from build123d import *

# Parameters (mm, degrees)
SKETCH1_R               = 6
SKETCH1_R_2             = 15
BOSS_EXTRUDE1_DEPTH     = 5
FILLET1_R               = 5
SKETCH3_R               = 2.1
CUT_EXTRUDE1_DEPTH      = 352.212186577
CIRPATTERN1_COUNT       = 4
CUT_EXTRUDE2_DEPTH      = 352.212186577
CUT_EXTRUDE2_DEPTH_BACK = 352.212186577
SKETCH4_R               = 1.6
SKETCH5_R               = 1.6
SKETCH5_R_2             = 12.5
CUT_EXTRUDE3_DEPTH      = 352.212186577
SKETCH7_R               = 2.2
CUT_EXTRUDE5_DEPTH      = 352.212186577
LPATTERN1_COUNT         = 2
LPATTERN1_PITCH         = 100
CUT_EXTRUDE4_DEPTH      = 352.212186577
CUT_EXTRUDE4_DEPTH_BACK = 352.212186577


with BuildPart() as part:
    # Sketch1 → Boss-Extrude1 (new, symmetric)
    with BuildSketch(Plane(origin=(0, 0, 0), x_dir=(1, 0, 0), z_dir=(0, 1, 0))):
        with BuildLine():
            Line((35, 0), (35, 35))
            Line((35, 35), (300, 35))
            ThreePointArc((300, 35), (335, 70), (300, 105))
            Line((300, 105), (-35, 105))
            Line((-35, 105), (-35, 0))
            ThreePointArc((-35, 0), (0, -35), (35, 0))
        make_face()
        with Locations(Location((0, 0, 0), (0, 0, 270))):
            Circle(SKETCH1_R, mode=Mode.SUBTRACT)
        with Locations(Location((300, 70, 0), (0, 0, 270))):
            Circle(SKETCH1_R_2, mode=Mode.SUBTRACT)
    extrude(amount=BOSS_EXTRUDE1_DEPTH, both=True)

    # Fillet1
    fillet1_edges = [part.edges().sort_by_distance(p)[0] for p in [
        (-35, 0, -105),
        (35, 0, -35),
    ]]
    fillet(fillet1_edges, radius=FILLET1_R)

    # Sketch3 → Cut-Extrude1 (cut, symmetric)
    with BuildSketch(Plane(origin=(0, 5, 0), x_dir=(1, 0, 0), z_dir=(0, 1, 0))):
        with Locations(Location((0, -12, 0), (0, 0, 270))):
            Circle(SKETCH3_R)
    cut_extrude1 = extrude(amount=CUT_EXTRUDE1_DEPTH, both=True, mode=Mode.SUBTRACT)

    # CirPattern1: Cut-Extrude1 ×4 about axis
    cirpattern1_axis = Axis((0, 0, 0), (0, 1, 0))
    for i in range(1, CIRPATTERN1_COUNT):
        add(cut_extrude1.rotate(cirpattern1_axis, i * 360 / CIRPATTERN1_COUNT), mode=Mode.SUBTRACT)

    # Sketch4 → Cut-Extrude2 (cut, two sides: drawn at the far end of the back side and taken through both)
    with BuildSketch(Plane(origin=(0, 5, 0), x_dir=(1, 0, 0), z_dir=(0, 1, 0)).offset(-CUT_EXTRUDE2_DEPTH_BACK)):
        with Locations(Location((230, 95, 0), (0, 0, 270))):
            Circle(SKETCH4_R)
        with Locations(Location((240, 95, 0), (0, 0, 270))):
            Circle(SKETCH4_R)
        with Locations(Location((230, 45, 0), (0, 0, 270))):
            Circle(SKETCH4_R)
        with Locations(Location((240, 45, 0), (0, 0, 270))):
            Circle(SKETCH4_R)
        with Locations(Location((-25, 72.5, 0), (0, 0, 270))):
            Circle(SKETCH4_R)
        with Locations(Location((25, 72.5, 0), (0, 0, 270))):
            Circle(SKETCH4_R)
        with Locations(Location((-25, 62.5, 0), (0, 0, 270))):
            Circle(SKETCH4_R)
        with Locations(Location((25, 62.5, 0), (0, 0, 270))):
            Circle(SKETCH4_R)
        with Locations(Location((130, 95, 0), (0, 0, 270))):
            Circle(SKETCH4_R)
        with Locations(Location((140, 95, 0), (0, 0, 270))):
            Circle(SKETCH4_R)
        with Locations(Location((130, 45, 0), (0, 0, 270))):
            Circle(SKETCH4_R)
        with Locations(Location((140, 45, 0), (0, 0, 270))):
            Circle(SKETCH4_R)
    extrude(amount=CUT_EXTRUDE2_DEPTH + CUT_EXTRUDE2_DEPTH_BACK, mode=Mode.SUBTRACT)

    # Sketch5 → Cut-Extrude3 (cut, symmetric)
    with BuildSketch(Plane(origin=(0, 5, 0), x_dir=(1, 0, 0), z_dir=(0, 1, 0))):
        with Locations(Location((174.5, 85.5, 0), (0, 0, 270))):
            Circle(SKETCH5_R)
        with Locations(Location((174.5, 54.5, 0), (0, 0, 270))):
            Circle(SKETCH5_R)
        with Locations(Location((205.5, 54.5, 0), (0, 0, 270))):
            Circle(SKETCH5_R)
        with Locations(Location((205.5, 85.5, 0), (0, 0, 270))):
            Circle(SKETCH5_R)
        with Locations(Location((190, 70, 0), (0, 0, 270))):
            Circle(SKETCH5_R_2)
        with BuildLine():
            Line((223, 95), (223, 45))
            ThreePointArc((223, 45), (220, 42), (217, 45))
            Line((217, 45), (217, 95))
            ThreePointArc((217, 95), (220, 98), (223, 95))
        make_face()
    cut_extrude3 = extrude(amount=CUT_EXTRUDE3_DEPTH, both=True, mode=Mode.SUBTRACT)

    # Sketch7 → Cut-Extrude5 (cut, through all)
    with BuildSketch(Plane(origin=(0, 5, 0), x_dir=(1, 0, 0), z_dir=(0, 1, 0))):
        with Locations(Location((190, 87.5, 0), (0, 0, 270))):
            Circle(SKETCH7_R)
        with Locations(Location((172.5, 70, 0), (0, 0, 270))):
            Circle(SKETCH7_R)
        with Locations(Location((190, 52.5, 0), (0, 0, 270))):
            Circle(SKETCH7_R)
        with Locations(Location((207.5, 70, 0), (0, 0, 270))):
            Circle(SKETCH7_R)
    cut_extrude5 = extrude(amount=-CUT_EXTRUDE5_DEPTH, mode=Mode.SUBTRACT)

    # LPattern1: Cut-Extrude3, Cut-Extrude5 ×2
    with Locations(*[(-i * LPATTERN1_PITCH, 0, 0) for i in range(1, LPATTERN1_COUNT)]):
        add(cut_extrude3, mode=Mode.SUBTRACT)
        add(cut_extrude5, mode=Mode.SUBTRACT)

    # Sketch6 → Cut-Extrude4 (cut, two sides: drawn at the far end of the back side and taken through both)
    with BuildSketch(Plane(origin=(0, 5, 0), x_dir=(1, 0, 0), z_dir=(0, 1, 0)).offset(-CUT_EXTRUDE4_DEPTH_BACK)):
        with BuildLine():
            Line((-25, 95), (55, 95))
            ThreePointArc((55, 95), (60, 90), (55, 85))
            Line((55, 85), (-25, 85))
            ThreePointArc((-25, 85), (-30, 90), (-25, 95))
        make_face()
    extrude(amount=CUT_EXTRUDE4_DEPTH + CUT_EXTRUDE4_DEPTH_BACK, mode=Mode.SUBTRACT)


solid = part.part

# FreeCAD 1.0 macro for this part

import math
import FreeCAD as App
import Part
import Sketcher
Q = App.Units.Quantity


def edges_at(feature, points):
    """Names of the edges that pass closest to the given points."""
    edges = feature.Shape.Edges
    near = lambda p: min(range(len(edges)), key=lambda i: edges[i].distToShape(Part.Vertex(*p))[0])
    return sorted({f"Edge{near(p) + 1}" for p in points})

doc = App.newDocument("Part")
body = doc.addObject("PartDesign::Body", "Body")

sketch1 = body.newObject("Sketcher::SketchObject", "Sketch")
sketch1.AttachmentSupport = (doc.getObject("XZ_Plane"), [""])
sketch1.MapMode = "FlatFace"
sketch1.addGeometry([
    Part.LineSegment(App.Vector(35, 0, 0), App.Vector(35, -35, 0)),
    Part.LineSegment(App.Vector(35, -35, 0), App.Vector(300, -35, 0)),
    Part.ArcOfCircle(Part.Circle(App.Vector(300, -70, 0), App.Vector(0, 0, 1), 35), math.radians(-90), math.radians(90)),
    Part.LineSegment(App.Vector(300, -105, 0), App.Vector(-35, -105, 0)),
    Part.LineSegment(App.Vector(-35, -105, 0), App.Vector(-35, 0, 0)),
    Part.ArcOfCircle(Part.Circle(App.Vector(0, 0, 0), App.Vector(0, 0, 1), 35), math.radians(0), math.radians(180)),
    Part.Circle(App.Vector(0, 0, 0), App.Vector(0, 0, 1), 6),
    Part.Circle(App.Vector(300, -70, 0), App.Vector(0, 0, 1), 15),
], False)
sketch1.addConstraint([
    Sketcher.Constraint("Coincident", 0, 2, 1, 1),
    Sketcher.Constraint("Tangent", 1, 2, 2, 2),
    Sketcher.Constraint("Tangent", 2, 1, 3, 1),
    Sketcher.Constraint("Coincident", 3, 2, 4, 1),
    Sketcher.Constraint("Tangent", 4, 2, 5, 2),
    Sketcher.Constraint("Tangent", 5, 1, 0, 1),
    Sketcher.Constraint("Vertical", 0),
    Sketcher.Constraint("Horizontal", 1),
    Sketcher.Constraint("Horizontal", 3),
    Sketcher.Constraint("Vertical", 4),
    Sketcher.Constraint("Coincident", 5, 3, -1, 1),
    Sketcher.Constraint("Coincident", 6, 3, -1, 1),
    Sketcher.Constraint("Coincident", 7, 3, 2, 3),
    Sketcher.Constraint("Equal", 2, 5),
    Sketcher.Constraint("Diameter", 6, Q("12 mm")),
    Sketcher.Constraint("Diameter", 7, Q("30 mm")),
    Sketcher.Constraint("Radius", 2, Q("35 mm")),
    Sketcher.Constraint("DistanceX", 1, 1, 1, 2, Q("265 mm")),
    Sketcher.Constraint("DistanceY", 0, 2, 0, 1, Q("35 mm")),
])
pad1 = body.newObject("PartDesign::Pad", "Pad")
pad1.Profile = sketch1
pad1.Length = 10
pad1.Midplane = True
doc.recompute()

fillet = body.newObject("PartDesign::Fillet", "Fillet")
fillet.Base = (pad1, edges_at(pad1, [(-35, 0, -105), (35, 0, -35)]))
fillet.Radius = 5

sketch2 = body.newObject("Sketcher::SketchObject", "Sketch001")
sketch2.AttachmentSupport = (doc.getObject("XZ_Plane"), [""])
sketch2.MapMode = "FlatFace"
sketch2.AttachmentOffset = App.Placement(App.Vector(0, 0, -5), App.Rotation())
sketch2.addGeometry(Part.Circle(App.Vector(0, 12, 0), App.Vector(0, 0, 1), 2.1), False)
sketch2.addConstraint([
    Sketcher.Constraint("PointOnObject", 0, 3, -2),
    Sketcher.Constraint("Diameter", 0, Q("4.2 mm")),
    Sketcher.Constraint("DistanceY", -1, 1, 0, 3, Q("12 mm")),
])
pocket1 = body.newObject("PartDesign::Pocket", "Pocket")
pocket1.Profile = sketch2
pocket1.Length = 704.424373
pocket1.Midplane = True
doc.recompute()

polarpattern = body.newObject("PartDesign::PolarPattern", "PolarPattern")
polarpattern.Originals = [pocket1]
polarpattern.Axis = (doc.getObject("Y_Axis"), [""])
polarpattern.Angle = 360
polarpattern.Occurrences = 4
body.Tip = polarpattern

sketch3 = body.newObject("Sketcher::SketchObject", "Sketch002")
sketch3.AttachmentSupport = (doc.getObject("XZ_Plane"), [""])
sketch3.MapMode = "FlatFace"
sketch3.AttachmentOffset = App.Placement(App.Vector(0, 0, -5), App.Rotation())
sketch3.addGeometry([
    Part.Circle(App.Vector(230, -95, 0), App.Vector(0, 0, 1), 1.6),
    Part.Circle(App.Vector(240, -95, 0), App.Vector(0, 0, 1), 1.6),
    Part.Circle(App.Vector(230, -45, 0), App.Vector(0, 0, 1), 1.6),
    Part.Circle(App.Vector(240, -45, 0), App.Vector(0, 0, 1), 1.6),
    Part.Circle(App.Vector(-25, -72.5, 0), App.Vector(0, 0, 1), 1.6),
    Part.Circle(App.Vector(25, -72.5, 0), App.Vector(0, 0, 1), 1.6),
    Part.Circle(App.Vector(-25, -62.5, 0), App.Vector(0, 0, 1), 1.6),
    Part.Circle(App.Vector(25, -62.5, 0), App.Vector(0, 0, 1), 1.6),
    Part.Circle(App.Vector(130, -95, 0), App.Vector(0, 0, 1), 1.6),
    Part.Circle(App.Vector(140, -95, 0), App.Vector(0, 0, 1), 1.6),
    Part.Circle(App.Vector(130, -45, 0), App.Vector(0, 0, 1), 1.6),
    Part.Circle(App.Vector(140, -45, 0), App.Vector(0, 0, 1), 1.6),
], False)
sketch3.addConstraint([
    Sketcher.Constraint("Equal", 0, 1),
    Sketcher.Constraint("Equal", 1, 2),
    Sketcher.Constraint("Equal", 2, 3),
    Sketcher.Constraint("Equal", 3, 4),
    Sketcher.Constraint("Equal", 4, 5),
    Sketcher.Constraint("Equal", 5, 6),
    Sketcher.Constraint("Equal", 6, 7),
    Sketcher.Constraint("Equal", 7, 8),
    Sketcher.Constraint("Equal", 8, 9),
    Sketcher.Constraint("Equal", 9, 10),
    Sketcher.Constraint("Equal", 10, 11),
    Sketcher.Constraint("Symmetric", 4, 3, 5, 3, -2),
    Sketcher.Constraint("Symmetric", 6, 3, 7, 3, -2),
    Sketcher.Constraint("Horizontal", 0, 3, 1, 3),
    Sketcher.Constraint("Horizontal", 2, 3, 3, 3),
    Sketcher.Constraint("Horizontal", 1, 3, 8, 3),
    Sketcher.Constraint("Horizontal", 8, 3, 9, 3),
    Sketcher.Constraint("Horizontal", 3, 3, 10, 3),
    Sketcher.Constraint("Horizontal", 10, 3, 11, 3),
    Sketcher.Constraint("Vertical", 0, 3, 2, 3),
    Sketcher.Constraint("Vertical", 1, 3, 3, 3),
    Sketcher.Constraint("Vertical", 4, 3, 6, 3),
    Sketcher.Constraint("Vertical", 8, 3, 10, 3),
    Sketcher.Constraint("Vertical", 9, 3, 11, 3),
    Sketcher.Constraint("Diameter", 0, Q("3.2 mm")),
    Sketcher.Constraint("DistanceX", -1, 1, 0, 3, Q("230 mm")),
    Sketcher.Constraint("DistanceY", 0, 3, -1, 1, Q("95 mm")),
    Sketcher.Constraint("DistanceX", -1, 1, 1, 3, Q("240 mm")),
    Sketcher.Constraint("DistanceY", 2, 3, -1, 1, Q("45 mm")),
    Sketcher.Constraint("DistanceX", 4, 3, -1, 1, Q("25 mm")),
    Sketcher.Constraint("DistanceX", -1, 1, 8, 3, Q("130 mm")),
    Sketcher.Constraint("DistanceX", -1, 1, 9, 3, Q("140 mm")),
    Sketcher.Constraint("DistanceY", 4, 3, 6, 3, Q("10 mm")),
    Sketcher.Constraint("DistanceY", 4, 3, -1, 1, Q("72.5 mm")),
])
pocket2 = body.newObject("PartDesign::Pocket", "Pocket001")
pocket2.Profile = sketch3
pocket2.Type = "ThroughAll"
pocket2.Midplane = True

sketch4 = body.newObject("Sketcher::SketchObject", "Sketch003")
sketch4.AttachmentSupport = (doc.getObject("XZ_Plane"), [""])
sketch4.MapMode = "FlatFace"
sketch4.AttachmentOffset = App.Placement(App.Vector(0, 0, -5), App.Rotation())
sketch4.addGeometry([
    Part.Circle(App.Vector(174.5, -85.5, 0), App.Vector(0, 0, 1), 1.6),
    Part.Circle(App.Vector(174.5, -54.5, 0), App.Vector(0, 0, 1), 1.6),
    Part.Circle(App.Vector(205.5, -54.5, 0), App.Vector(0, 0, 1), 1.6),
    Part.Circle(App.Vector(205.5, -85.5, 0), App.Vector(0, 0, 1), 1.6),
    Part.Circle(App.Vector(190, -70, 0), App.Vector(0, 0, 1), 12.5),
    Part.LineSegment(App.Vector(223, -45, 0), App.Vector(223, -95, 0)),
    Part.ArcOfCircle(Part.Circle(App.Vector(220, -95, 0), App.Vector(0, 0, 1), 3), math.radians(180), math.radians(360)),
    Part.LineSegment(App.Vector(217, -95, 0), App.Vector(217, -45, 0)),
    Part.ArcOfCircle(Part.Circle(App.Vector(220, -45, 0), App.Vector(0, 0, 1), 3), math.radians(0), math.radians(180)),
], False)
sketch4.addConstraint([
    Sketcher.Constraint("Tangent", 5, 2, 6, 2),
    Sketcher.Constraint("Tangent", 6, 1, 7, 1),
    Sketcher.Constraint("Tangent", 7, 2, 8, 2),
    Sketcher.Constraint("Tangent", 8, 1, 5, 1),
    Sketcher.Constraint("Vertical", 5),
    Sketcher.Constraint("Vertical", 7),
    Sketcher.Constraint("Equal", 0, 1),
    Sketcher.Constraint("Equal", 1, 2),
    Sketcher.Constraint("Equal", 2, 3),
    Sketcher.Constraint("Horizontal", 1, 3, 2, 3),
    Sketcher.Constraint("Horizontal", 0, 3, 3, 3),
    Sketcher.Constraint("Vertical", 0, 3, 1, 3),
    Sketcher.Constraint("Vertical", 2, 3, 3, 3),
    Sketcher.Constraint("Diameter", 4, Q("25 mm")),
    Sketcher.Constraint("Radius", 6, Q("3 mm")),
    Sketcher.Constraint("Diameter", 0, Q("3.2 mm")),
    Sketcher.Constraint("DistanceY", 5, 2, 5, 1, Q("50 mm")),
    Sketcher.Constraint("DistanceX", -1, 1, 4, 3, Q("190 mm")),
    Sketcher.Constraint("DistanceY", 4, 3, -1, 1, Q("70 mm")),
    Sketcher.Constraint("DistanceX", -1, 1, 6, 3, Q("220 mm")),
    Sketcher.Constraint("DistanceY", 6, 3, -1, 1, Q("95 mm")),
    Sketcher.Constraint("DistanceY", 0, 3, 1, 3, Q("31 mm")),
    Sketcher.Constraint("DistanceX", 1, 3, 2, 3, Q("31 mm")),
    Sketcher.Constraint("DistanceX", -1, 1, 0, 3, Q("174.5 mm")),
    Sketcher.Constraint("DistanceY", 0, 3, -1, 1, Q("85.5 mm")),
])
pocket3 = body.newObject("PartDesign::Pocket", "Pocket002")
pocket3.Profile = sketch4
pocket3.Length = 704.424373
pocket3.Midplane = True

sketch5 = body.newObject("Sketcher::SketchObject", "Sketch004")
sketch5.AttachmentSupport = (doc.getObject("XZ_Plane"), [""])
sketch5.MapMode = "FlatFace"
sketch5.AttachmentOffset = App.Placement(App.Vector(0, 0, -5), App.Rotation())
sketch5.addGeometry([
    Part.Circle(App.Vector(190, -87.5, 0), App.Vector(0, 0, 1), 2.2),
    Part.Circle(App.Vector(172.5, -70, 0), App.Vector(0, 0, 1), 2.2),
    Part.Circle(App.Vector(190, -52.5, 0), App.Vector(0, 0, 1), 2.2),
    Part.Circle(App.Vector(207.5, -70, 0), App.Vector(0, 0, 1), 2.2),
], False)
sketch5.addConstraint([
    Sketcher.Constraint("Equal", 0, 1),
    Sketcher.Constraint("Equal", 1, 2),
    Sketcher.Constraint("Equal", 2, 3),
    Sketcher.Constraint("Horizontal", 1, 3, 3, 3),
    Sketcher.Constraint("Vertical", 0, 3, 2, 3),
    Sketcher.Constraint("Diameter", 0, Q("4.4 mm")),
    Sketcher.Constraint("DistanceX", -1, 1, 0, 3, Q("190 mm")),
    Sketcher.Constraint("DistanceY", 1, 3, -1, 1, Q("70 mm")),
    Sketcher.Constraint("DistanceY", 0, 3, 2, 3, Q("35 mm")),
    Sketcher.Constraint("DistanceX", 1, 3, 3, 3, Q("35 mm")),
    Sketcher.Constraint("DistanceY", 0, 3, -1, 1, Q("87.5 mm")),
    Sketcher.Constraint("DistanceX", -1, 1, 1, 3, Q("172.5 mm")),
])
pocket4 = body.newObject("PartDesign::Pocket", "Pocket003")
pocket4.Profile = sketch5
pocket4.Type = "ThroughAll"
pocket4.Reversed = True
doc.recompute()

linearpattern = body.newObject("PartDesign::LinearPattern", "LinearPattern")
linearpattern.Originals = [pocket3, pocket4]
linearpattern.Direction = (doc.getObject("X_Axis"), [""])
linearpattern.Mode = "offset"
linearpattern.Offset = 100
linearpattern.Occurrences = 2
linearpattern.Reversed = True
body.Tip = linearpattern

sketch6 = body.newObject("Sketcher::SketchObject", "Sketch005")
sketch6.AttachmentSupport = (doc.getObject("XZ_Plane"), [""])
sketch6.MapMode = "FlatFace"
sketch6.AttachmentOffset = App.Placement(App.Vector(0, 0, -5), App.Rotation())
sketch6.addGeometry([
    Part.LineSegment(App.Vector(55, -95, 0), App.Vector(-25, -95, 0)),
    Part.ArcOfCircle(Part.Circle(App.Vector(-25, -90, 0), App.Vector(0, 0, 1), 5), math.radians(90), math.radians(270)),
    Part.LineSegment(App.Vector(-25, -85, 0), App.Vector(55, -85, 0)),
    Part.ArcOfCircle(Part.Circle(App.Vector(55, -90, 0), App.Vector(0, 0, 1), 5), math.radians(-90), math.radians(90)),
], False)
sketch6.addConstraint([
    Sketcher.Constraint("Tangent", 0, 2, 1, 2),
    Sketcher.Constraint("Tangent", 1, 1, 2, 1),
    Sketcher.Constraint("Tangent", 2, 2, 3, 2),
    Sketcher.Constraint("Tangent", 3, 1, 0, 1),
    Sketcher.Constraint("Horizontal", 0),
    Sketcher.Constraint("Horizontal", 2),
    Sketcher.Constraint("Radius", 1, Q("5 mm")),
    Sketcher.Constraint("DistanceX", 0, 2, 0, 1, Q("80 mm")),
    Sketcher.Constraint("DistanceX", 1, 3, -1, 1, Q("25 mm")),
    Sketcher.Constraint("DistanceY", 1, 3, -1, 1, Q("90 mm")),
])
pocket5 = body.newObject("PartDesign::Pocket", "Pocket004")
pocket5.Profile = sketch6
pocket5.Type = "ThroughAll"
pocket5.Midplane = True

doc.recompute()
